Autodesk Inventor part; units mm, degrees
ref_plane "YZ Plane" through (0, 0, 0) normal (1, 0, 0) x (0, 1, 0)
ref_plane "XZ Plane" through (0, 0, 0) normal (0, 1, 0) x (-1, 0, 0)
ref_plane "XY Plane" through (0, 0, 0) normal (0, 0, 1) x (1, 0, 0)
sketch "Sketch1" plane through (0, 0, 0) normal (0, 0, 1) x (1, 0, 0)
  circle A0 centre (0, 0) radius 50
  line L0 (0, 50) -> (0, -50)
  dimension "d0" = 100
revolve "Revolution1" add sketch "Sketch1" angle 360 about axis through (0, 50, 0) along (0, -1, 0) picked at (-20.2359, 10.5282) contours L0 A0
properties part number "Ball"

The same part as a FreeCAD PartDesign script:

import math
import FreeCAD as App
import Part
import Sketcher

V = App.Vector
Q = App.Units.Quantity

doc = App.newDocument("Part")
body = doc.addObject("PartDesign::Body", "Body")

sketch1 = body.newObject("Sketcher::SketchObject", "Sketch")
sketch1.AttachmentSupport = (doc.getObject("XY_Plane"), [""])
sketch1.MapMode = "FlatFace"
sketch1.addGeometry([
    Part.LineSegment(V(0, -50, 0), V(0, 50, 0)),
    Part.ArcOfCircle(Part.Circle(V(0, 0, 0), V(0, 0, 1), 50), math.radians(90), math.radians(270)),
], False)
sketch1.addConstraint([
    Sketcher.Constraint("Coincident", 0, 1, 1, 2),
    Sketcher.Constraint("Coincident", 1, 1, 0, 2),
    Sketcher.Constraint("Vertical", 0),
    Sketcher.Constraint("Coincident", 1, 3, -1, 1),
    Sketcher.Constraint("PointOnObject", 0, 1, -2),
    Sketcher.Constraint("Radius", 1, Q("1.9685 in")),
])
revolution = body.newObject("PartDesign::Revolution", "Revolution")
revolution.Profile = sketch1
revolution.ReferenceAxis = (sketch1, ["V_Axis"])
revolution.Angle = 360

doc.recompute()
